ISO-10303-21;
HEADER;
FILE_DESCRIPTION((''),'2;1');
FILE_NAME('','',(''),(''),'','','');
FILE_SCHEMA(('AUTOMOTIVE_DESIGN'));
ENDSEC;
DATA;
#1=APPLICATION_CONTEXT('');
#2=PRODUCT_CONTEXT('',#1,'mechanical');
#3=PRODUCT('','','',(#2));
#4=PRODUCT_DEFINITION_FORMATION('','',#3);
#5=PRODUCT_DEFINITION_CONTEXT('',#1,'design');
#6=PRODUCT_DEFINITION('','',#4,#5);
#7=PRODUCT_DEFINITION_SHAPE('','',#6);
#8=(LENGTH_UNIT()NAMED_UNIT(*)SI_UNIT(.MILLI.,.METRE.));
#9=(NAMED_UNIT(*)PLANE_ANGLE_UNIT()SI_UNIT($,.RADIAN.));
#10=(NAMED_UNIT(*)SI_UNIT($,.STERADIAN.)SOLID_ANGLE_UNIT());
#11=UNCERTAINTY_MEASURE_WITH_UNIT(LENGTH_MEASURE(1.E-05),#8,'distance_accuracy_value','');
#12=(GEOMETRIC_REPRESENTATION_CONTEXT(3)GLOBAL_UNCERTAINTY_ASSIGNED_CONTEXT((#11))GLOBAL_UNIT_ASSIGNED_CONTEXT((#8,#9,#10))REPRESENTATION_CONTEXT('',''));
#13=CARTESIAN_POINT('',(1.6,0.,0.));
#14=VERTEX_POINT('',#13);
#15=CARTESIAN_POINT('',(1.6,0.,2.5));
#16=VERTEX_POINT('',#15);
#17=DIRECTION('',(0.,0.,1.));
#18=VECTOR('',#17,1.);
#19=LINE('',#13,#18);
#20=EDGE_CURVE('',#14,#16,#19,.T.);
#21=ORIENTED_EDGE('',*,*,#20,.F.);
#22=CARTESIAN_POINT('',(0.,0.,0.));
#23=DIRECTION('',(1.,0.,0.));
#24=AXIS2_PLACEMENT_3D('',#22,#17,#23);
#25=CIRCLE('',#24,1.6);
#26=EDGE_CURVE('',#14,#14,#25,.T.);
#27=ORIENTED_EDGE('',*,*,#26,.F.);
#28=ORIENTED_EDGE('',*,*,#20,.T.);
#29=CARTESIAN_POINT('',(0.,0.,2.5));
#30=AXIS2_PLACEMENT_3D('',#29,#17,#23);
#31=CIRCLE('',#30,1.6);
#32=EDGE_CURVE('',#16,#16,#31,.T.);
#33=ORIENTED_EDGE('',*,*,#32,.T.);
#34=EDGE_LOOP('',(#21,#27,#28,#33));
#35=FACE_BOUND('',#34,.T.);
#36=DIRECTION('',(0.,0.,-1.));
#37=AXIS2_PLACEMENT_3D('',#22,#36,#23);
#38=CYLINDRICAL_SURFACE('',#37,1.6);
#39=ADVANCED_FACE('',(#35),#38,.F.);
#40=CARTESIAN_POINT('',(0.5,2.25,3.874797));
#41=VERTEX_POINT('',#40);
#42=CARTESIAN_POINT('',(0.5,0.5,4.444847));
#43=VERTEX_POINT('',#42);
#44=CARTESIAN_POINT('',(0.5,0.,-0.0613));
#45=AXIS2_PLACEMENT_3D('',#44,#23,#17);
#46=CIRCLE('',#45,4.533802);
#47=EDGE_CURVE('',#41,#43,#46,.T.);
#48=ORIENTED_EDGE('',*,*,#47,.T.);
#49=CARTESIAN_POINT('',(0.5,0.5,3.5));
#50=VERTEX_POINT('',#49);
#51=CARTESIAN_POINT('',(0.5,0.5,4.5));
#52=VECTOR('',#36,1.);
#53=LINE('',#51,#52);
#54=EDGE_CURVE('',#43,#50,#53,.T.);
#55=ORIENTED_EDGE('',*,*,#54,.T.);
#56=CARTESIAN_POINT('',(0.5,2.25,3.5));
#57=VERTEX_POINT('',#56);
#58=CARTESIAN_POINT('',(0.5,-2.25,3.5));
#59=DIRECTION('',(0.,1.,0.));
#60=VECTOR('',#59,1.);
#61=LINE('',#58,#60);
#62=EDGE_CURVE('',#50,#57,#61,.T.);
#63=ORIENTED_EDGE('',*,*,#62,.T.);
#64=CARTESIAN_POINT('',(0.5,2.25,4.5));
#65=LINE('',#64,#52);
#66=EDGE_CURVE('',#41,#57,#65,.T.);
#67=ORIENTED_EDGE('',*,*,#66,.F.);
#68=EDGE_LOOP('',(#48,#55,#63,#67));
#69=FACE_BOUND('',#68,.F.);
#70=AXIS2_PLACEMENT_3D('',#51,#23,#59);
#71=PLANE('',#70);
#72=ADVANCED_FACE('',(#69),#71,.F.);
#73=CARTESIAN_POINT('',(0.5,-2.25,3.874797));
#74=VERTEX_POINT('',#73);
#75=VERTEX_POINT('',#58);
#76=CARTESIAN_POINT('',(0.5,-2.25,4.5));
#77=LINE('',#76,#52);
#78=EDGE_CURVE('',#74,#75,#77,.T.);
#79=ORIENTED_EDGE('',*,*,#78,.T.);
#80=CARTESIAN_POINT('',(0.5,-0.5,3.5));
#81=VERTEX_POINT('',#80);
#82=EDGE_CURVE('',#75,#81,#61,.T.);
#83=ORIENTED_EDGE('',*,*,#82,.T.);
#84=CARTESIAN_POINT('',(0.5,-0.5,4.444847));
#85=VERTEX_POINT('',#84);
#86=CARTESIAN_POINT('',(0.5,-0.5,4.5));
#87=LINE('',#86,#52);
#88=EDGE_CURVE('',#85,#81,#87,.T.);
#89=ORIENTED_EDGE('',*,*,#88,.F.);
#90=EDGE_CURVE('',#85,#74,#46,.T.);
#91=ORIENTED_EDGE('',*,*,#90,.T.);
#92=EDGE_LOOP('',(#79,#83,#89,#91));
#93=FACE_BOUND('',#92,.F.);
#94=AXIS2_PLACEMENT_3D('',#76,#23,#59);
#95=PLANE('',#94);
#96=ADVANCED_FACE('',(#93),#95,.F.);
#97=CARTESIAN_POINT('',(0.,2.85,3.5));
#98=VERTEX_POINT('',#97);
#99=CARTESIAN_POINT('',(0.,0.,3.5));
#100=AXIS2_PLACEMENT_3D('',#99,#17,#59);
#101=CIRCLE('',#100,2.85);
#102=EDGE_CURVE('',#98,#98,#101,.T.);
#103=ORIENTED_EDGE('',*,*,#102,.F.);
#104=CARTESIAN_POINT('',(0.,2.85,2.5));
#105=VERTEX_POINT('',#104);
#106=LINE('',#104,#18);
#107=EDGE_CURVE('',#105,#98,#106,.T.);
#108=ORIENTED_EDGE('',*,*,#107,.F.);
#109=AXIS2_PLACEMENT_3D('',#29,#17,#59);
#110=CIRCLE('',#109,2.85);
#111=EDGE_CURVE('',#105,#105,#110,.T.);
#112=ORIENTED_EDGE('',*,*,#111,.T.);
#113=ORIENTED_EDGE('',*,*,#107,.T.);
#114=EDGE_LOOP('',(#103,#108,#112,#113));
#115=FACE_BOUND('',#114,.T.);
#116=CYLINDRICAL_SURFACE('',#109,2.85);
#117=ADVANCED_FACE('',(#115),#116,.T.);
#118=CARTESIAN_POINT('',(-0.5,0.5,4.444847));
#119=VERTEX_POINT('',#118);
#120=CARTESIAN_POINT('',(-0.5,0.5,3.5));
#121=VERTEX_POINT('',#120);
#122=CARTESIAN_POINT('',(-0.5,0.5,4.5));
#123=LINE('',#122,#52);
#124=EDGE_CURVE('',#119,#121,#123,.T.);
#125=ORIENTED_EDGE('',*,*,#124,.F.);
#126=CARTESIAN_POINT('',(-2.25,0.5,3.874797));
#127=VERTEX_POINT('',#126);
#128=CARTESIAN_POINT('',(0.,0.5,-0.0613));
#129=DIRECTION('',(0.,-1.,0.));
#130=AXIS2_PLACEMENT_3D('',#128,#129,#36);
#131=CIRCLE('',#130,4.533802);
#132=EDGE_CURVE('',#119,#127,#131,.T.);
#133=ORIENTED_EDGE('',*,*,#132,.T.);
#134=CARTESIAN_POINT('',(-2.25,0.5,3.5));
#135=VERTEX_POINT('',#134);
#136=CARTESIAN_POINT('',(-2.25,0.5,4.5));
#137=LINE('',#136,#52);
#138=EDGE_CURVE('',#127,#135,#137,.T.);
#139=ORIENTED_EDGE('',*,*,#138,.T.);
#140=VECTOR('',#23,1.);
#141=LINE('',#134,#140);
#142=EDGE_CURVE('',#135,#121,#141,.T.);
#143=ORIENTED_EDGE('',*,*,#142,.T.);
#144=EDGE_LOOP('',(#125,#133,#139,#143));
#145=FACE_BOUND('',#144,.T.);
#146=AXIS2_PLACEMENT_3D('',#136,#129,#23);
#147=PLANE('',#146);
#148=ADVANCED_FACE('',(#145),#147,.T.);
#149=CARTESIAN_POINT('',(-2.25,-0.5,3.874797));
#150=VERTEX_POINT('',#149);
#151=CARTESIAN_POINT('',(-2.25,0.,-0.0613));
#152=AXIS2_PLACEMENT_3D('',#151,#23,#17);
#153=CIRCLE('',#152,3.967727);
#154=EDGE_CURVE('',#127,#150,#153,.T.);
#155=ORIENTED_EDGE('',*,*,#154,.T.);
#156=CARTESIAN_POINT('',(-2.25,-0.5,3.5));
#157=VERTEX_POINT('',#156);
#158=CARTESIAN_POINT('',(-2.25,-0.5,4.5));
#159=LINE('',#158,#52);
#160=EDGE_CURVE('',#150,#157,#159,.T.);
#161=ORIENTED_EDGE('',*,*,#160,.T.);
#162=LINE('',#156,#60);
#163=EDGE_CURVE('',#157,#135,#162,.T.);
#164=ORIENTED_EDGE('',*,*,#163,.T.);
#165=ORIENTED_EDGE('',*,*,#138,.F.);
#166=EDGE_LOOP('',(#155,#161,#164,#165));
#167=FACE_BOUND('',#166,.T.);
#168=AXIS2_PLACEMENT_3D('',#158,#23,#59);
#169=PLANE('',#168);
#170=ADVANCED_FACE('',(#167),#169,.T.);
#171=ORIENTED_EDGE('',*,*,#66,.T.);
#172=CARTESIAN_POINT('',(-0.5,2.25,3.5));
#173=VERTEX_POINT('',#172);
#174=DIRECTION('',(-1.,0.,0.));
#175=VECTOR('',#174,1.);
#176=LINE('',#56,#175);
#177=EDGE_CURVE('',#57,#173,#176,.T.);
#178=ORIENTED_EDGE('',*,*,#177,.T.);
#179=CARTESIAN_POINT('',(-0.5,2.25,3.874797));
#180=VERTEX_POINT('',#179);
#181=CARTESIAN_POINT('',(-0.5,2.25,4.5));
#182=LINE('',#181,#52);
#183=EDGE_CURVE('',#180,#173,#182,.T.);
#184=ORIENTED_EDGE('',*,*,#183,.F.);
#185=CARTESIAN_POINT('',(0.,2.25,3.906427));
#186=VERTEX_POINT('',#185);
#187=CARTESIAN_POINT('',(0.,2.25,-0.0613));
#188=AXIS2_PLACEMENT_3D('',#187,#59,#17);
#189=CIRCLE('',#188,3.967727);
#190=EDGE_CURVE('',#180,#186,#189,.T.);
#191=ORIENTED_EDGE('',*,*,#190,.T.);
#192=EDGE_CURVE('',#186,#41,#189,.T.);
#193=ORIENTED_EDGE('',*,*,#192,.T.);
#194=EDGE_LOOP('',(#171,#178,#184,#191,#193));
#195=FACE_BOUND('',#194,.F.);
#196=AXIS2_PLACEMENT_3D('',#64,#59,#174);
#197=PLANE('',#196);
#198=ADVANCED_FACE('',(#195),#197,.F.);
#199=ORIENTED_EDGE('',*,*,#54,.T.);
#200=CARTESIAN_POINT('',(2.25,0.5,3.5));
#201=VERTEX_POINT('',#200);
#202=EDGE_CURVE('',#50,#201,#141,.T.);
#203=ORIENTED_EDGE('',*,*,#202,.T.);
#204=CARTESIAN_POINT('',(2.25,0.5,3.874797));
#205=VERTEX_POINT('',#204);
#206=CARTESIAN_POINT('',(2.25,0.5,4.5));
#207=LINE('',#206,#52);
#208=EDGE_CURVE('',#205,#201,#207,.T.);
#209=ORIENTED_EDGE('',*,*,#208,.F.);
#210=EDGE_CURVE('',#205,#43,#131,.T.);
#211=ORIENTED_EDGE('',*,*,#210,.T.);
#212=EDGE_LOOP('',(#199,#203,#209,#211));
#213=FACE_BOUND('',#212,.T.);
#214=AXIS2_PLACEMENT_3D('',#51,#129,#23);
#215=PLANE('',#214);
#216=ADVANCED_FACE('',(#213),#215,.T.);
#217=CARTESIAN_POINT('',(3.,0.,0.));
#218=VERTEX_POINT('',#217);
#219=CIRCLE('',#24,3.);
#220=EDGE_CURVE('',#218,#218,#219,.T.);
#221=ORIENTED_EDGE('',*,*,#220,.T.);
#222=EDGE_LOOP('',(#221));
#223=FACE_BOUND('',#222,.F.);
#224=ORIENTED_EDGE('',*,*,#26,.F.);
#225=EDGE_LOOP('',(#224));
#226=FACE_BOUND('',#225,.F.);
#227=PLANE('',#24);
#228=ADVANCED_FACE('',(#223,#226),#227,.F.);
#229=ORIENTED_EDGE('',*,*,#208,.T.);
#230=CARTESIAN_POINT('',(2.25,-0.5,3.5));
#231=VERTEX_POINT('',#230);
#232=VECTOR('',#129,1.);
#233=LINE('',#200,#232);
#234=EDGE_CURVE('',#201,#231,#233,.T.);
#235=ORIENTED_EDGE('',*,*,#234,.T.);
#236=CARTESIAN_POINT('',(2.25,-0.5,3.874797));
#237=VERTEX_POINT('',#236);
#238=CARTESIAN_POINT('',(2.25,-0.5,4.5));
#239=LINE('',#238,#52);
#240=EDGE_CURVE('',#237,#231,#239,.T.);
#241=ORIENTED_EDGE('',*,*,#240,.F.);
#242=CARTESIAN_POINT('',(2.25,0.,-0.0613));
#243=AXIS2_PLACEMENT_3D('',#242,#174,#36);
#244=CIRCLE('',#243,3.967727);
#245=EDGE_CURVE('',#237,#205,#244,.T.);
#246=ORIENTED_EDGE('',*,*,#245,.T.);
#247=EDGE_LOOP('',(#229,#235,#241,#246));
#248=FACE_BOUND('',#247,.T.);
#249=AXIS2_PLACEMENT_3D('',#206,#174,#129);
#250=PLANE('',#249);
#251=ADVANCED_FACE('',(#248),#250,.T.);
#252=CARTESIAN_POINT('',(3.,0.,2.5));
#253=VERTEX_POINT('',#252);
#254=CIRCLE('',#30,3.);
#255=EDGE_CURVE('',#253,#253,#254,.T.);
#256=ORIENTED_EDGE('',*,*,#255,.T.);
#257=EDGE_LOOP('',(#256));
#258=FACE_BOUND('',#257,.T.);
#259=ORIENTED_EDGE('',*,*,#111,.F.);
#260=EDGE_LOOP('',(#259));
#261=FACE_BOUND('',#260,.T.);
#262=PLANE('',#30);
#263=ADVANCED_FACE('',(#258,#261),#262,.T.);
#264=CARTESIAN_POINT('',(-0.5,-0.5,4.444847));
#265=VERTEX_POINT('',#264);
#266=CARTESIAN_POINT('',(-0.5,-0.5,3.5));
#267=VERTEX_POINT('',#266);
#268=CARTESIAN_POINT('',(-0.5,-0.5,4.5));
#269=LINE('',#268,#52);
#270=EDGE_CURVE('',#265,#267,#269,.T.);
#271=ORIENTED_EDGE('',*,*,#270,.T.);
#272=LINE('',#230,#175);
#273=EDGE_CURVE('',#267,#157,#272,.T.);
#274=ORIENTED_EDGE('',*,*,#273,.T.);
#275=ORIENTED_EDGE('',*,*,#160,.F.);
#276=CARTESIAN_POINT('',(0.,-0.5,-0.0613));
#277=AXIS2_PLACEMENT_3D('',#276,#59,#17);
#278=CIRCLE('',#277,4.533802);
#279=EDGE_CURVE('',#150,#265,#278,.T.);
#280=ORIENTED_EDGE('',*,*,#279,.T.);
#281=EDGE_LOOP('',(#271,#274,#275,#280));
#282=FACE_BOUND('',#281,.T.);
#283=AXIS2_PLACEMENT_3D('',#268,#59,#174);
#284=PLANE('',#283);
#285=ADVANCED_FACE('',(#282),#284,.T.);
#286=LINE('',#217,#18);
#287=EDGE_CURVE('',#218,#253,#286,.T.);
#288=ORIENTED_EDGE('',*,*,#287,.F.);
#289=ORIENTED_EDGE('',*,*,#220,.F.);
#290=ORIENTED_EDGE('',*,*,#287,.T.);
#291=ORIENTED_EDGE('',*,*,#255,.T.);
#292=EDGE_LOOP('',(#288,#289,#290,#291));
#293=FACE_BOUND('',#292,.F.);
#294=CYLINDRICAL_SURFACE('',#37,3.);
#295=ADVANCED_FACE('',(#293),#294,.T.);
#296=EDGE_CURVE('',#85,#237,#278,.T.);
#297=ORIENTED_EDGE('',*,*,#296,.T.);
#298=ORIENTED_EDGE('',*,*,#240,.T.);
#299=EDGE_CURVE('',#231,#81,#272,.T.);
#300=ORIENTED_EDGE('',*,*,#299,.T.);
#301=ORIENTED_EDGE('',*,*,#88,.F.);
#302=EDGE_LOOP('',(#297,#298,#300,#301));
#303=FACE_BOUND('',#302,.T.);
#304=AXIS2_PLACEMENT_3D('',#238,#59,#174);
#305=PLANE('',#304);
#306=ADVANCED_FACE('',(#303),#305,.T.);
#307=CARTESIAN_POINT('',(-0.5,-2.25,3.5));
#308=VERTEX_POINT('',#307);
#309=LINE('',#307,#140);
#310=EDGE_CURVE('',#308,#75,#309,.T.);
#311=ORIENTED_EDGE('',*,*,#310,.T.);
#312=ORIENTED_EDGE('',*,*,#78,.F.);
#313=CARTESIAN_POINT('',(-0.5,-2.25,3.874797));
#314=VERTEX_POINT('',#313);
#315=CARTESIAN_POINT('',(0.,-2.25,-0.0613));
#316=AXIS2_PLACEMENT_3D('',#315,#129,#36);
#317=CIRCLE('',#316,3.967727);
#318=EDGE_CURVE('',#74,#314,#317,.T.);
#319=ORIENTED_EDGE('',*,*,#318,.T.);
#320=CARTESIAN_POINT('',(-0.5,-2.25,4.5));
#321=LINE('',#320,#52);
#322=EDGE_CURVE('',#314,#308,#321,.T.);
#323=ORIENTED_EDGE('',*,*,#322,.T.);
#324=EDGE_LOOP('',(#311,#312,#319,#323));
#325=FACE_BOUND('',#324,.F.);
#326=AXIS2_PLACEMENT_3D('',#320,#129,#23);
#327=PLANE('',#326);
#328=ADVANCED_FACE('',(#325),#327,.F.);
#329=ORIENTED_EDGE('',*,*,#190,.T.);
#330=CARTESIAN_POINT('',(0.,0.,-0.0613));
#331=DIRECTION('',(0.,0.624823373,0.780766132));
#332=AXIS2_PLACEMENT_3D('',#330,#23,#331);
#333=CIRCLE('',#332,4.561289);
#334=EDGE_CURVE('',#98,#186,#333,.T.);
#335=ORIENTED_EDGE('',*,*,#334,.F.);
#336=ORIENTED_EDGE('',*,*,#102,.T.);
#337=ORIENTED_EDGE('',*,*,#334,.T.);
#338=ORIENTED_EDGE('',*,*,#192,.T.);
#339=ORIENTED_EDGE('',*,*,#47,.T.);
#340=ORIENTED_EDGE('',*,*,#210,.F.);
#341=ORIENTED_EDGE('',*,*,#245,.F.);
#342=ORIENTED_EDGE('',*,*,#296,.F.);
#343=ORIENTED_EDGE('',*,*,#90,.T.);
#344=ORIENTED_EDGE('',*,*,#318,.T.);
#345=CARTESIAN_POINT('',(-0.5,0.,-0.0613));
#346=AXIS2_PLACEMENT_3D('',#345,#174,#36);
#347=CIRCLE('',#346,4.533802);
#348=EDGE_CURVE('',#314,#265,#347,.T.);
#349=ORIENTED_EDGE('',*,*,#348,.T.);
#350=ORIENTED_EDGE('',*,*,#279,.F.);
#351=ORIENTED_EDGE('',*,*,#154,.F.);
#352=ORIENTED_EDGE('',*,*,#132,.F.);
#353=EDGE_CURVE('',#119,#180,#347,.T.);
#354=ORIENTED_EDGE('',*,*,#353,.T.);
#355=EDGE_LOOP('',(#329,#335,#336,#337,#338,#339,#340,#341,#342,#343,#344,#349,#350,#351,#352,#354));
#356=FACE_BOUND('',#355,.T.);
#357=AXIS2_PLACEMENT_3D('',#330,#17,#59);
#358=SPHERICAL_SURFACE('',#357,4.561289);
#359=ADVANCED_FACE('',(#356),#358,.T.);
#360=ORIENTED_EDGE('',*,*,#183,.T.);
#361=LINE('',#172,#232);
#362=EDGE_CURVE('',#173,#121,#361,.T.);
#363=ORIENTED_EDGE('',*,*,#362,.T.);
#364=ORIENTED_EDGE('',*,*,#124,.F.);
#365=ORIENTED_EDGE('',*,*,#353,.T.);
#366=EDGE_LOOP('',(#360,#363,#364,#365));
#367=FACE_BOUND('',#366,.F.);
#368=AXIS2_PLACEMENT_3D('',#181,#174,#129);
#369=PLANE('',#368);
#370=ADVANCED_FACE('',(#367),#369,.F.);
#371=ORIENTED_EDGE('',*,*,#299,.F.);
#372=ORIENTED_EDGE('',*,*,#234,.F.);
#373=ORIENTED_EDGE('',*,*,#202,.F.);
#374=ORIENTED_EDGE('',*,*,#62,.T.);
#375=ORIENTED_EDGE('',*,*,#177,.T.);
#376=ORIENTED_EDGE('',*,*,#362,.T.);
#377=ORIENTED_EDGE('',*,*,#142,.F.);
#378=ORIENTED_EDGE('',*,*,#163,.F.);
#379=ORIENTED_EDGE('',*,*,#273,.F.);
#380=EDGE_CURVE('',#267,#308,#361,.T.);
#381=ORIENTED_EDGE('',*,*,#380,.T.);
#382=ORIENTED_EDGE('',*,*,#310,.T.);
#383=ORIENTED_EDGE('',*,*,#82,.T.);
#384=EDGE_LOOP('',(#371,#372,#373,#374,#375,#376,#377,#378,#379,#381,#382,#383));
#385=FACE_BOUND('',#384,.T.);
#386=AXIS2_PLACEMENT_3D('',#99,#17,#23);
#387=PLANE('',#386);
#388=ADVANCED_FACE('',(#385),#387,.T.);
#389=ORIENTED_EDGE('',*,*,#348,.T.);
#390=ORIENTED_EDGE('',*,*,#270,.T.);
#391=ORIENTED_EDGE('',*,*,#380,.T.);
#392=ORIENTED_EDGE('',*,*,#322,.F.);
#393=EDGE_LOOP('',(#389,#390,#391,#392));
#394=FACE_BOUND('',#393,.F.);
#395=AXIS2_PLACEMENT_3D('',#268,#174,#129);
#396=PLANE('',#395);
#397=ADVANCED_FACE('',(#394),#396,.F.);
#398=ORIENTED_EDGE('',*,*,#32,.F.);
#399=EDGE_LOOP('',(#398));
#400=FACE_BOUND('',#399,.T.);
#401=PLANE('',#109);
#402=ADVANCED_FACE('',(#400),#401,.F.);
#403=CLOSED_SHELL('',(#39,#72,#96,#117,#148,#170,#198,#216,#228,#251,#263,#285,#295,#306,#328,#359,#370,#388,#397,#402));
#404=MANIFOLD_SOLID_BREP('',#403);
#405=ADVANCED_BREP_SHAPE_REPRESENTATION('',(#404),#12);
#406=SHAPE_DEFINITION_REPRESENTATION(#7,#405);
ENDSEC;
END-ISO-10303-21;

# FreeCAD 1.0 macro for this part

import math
import FreeCAD as App
import Part
import Sketcher
Q = App.Units.Quantity

doc = App.newDocument("Part")
body = doc.addObject("PartDesign::Body", "Body")

sketch1 = body.newObject("Sketcher::SketchObject", "Sketch")
sketch1.AttachmentSupport = (doc.getObject("XY_Plane"), [""])
sketch1.MapMode = "FlatFace"
sketch1.addGeometry(Part.Circle(App.Vector(0, 0, 0), App.Vector(0, 0, 1), 3), False)
sketch1.addGeometry(Part.Circle(App.Vector(0, 0, 0), App.Vector(0, 0, 1), 1.6), False)
sketch1.addConstraint(Sketcher.Constraint("Coincident", 0, 3, -1, 1))
sketch1.addConstraint(Sketcher.Constraint("Coincident", 1, 3, -1, 1))
sketch1.addConstraint(Sketcher.Constraint("Diameter", 0, Q("6 mm")))
sketch1.addConstraint(Sketcher.Constraint("Diameter", 1, Q("3.2 mm")))
pad1 = body.newObject("PartDesign::Pad", "Pad")
pad1.Profile = sketch1
pad1.Length = 2.5

sketch2 = body.newObject("Sketcher::SketchObject", "Sketch001")
sketch2.AttachmentSupport = (doc.getObject("YZ_Plane"), [""])
sketch2.MapMode = "FlatFace"
sketch2.addGeometry(Part.LineSegment(App.Vector(0, 4.5, 0), App.Vector(0, 2.5, 0)), False)
sketch2.addGeometry(Part.LineSegment(App.Vector(0, 2.5, 0), App.Vector(2.9, 2.5, 0)), False)
sketch2.addGeometry(Part.LineSegment(App.Vector(2.9, 2.5, 0), App.Vector(2.9, 3.5, 0)), False)
sketch2.addGeometry(Part.ArcOfCircle(Part.Circle(App.Vector(0, -0.1, 0), App.Vector(0, 0, 1), 4.6), math.radians(51), math.radians(90)), False)
sketch2.addConstraint(Sketcher.Constraint("Coincident", 0, 2, 1, 1))
sketch2.addConstraint(Sketcher.Constraint("Coincident", 1, 2, 2, 1))
sketch2.addConstraint(Sketcher.Constraint("Coincident", 2, 2, 3, 1))
sketch2.addConstraint(Sketcher.Constraint("Coincident", 3, 2, 0, 1))
sketch2.addConstraint(Sketcher.Constraint("Vertical", 0))
sketch2.addConstraint(Sketcher.Constraint("Horizontal", 1))
sketch2.addConstraint(Sketcher.Constraint("Vertical", 2))
sketch2.addConstraint(Sketcher.Constraint("PointOnObject", 3, 3, -2))
sketch2.addConstraint(Sketcher.Constraint("PointOnObject", 0, 2, -2))
sketch2.addConstraint(Sketcher.Constraint("DistanceY", 2, 1, 2, 2, Q("1 mm")))
sketch2.addConstraint(Sketcher.Constraint("DistanceY", 2, 2, 3, 2, Q("1 mm")))
sketch2.addConstraint(Sketcher.Constraint("DistanceX", 1, 1, 1, 2, Q("2.85 mm")))
sketch2.addConstraint(Sketcher.Constraint("DistanceY", -1, 1, 0, 2, Q("2.5 mm")))
revolution = body.newObject("PartDesign::Revolution", "Revolution")
revolution.Profile = sketch2
revolution.ReferenceAxis = (sketch2, ["V_Axis"])
revolution.Angle = 360

sketch3 = body.newObject("Sketcher::SketchObject", "Sketch002")
sketch3.AttachmentSupport = (doc.getObject("XY_Plane"), [""])
sketch3.MapMode = "FlatFace"
sketch3.AttachmentOffset = App.Placement(App.Vector(0, 0, 4.5), App.Rotation())
sketch3.addGeometry(Part.LineSegment(App.Vector(0.5, -0.5, 0), App.Vector(2.2, -0.5, 0)), False)
sketch3.addGeometry(Part.LineSegment(App.Vector(2.2, -0.5, 0), App.Vector(2.2, 0.5, 0)), False)
sketch3.addGeometry(Part.LineSegment(App.Vector(2.2, 0.5, 0), App.Vector(0.5, 0.5, 0)), False)
sketch3.addGeometry(Part.LineSegment(App.Vector(0.5, 0.5, 0), App.Vector(0.5, 2.2, 0)), False)
sketch3.addGeometry(Part.LineSegment(App.Vector(0.5, 2.2, 0), App.Vector(-0.5, 2.2, 0)), False)
sketch3.addGeometry(Part.LineSegment(App.Vector(-0.5, 2.2, 0), App.Vector(-0.5, 0.5, 0)), False)
sketch3.addGeometry(Part.LineSegment(App.Vector(-0.5, 0.5, 0), App.Vector(-2.2, 0.5, 0)), False)
sketch3.addGeometry(Part.LineSegment(App.Vector(-2.2, 0.5, 0), App.Vector(-2.2, -0.5, 0)), False)
sketch3.addGeometry(Part.LineSegment(App.Vector(-2.2, -0.5, 0), App.Vector(-0.5, -0.5, 0)), False)
sketch3.addGeometry(Part.LineSegment(App.Vector(-0.5, -0.5, 0), App.Vector(-0.5, -2.2, 0)), False)
sketch3.addGeometry(Part.LineSegment(App.Vector(-0.5, -2.2, 0), App.Vector(0.5, -2.2, 0)), False)
sketch3.addGeometry(Part.LineSegment(App.Vector(0.5, -2.2, 0), App.Vector(0.5, -0.5, 0)), False)
sketch3.addConstraint(Sketcher.Constraint("Coincident", 0, 2, 1, 1))
sketch3.addConstraint(Sketcher.Constraint("Coincident", 1, 2, 2, 1))
sketch3.addConstraint(Sketcher.Constraint("Coincident", 2, 2, 3, 1))
sketch3.addConstraint(Sketcher.Constraint("Coincident", 3, 2, 4, 1))
sketch3.addConstraint(Sketcher.Constraint("Coincident", 4, 2, 5, 1))
sketch3.addConstraint(Sketcher.Constraint("Coincident", 5, 2, 6, 1))
sketch3.addConstraint(Sketcher.Constraint("Coincident", 6, 2, 7, 1))
sketch3.addConstraint(Sketcher.Constraint("Coincident", 7, 2, 8, 1))
sketch3.addConstraint(Sketcher.Constraint("Coincident", 8, 2, 9, 1))
sketch3.addConstraint(Sketcher.Constraint("Coincident", 9, 2, 10, 1))
sketch3.addConstraint(Sketcher.Constraint("Coincident", 10, 2, 11, 1))
sketch3.addConstraint(Sketcher.Constraint("Coincident", 11, 2, 0, 1))
sketch3.addConstraint(Sketcher.Constraint("Horizontal", 0))
sketch3.addConstraint(Sketcher.Constraint("Vertical", 1))
sketch3.addConstraint(Sketcher.Constraint("Horizontal", 2))
sketch3.addConstraint(Sketcher.Constraint("Vertical", 3))
sketch3.addConstraint(Sketcher.Constraint("Horizontal", 4))
sketch3.addConstraint(Sketcher.Constraint("Vertical", 5))
sketch3.addConstraint(Sketcher.Constraint("Horizontal", 6))
sketch3.addConstraint(Sketcher.Constraint("Vertical", 7))
sketch3.addConstraint(Sketcher.Constraint("Horizontal", 8))
sketch3.addConstraint(Sketcher.Constraint("Vertical", 9))
sketch3.addConstraint(Sketcher.Constraint("Horizontal", 10))
sketch3.addConstraint(Sketcher.Constraint("Vertical", 11))
sketch3.addConstraint(Sketcher.Constraint("Symmetric", 0, 2, 6, 2, -1, 1))
sketch3.addConstraint(Sketcher.Constraint("Symmetric", 2, 2, 8, 2, -1, 1))
sketch3.addConstraint(Sketcher.Constraint("Symmetric", 4, 2, 10, 2, -1, 1))
sketch3.addConstraint(Sketcher.Constraint("Symmetric", 2, 2, 5, 2, -2))
sketch3.addConstraint(Sketcher.Constraint("Equal", 10, 1))
sketch3.addConstraint(Sketcher.Constraint("Equal", 8, 3))
sketch3.addConstraint(Sketcher.Constraint("DistanceX", 4, 2, 4, 1, Q("1 mm")))
sketch3.addConstraint(Sketcher.Constraint("DistanceX", 6, 2, 1, 2, Q("4.5 mm")))
pocket1 = body.newObject("PartDesign::Pocket", "Pocket")
pocket1.Profile = sketch3
pocket1.Length = 1

doc.recompute()
